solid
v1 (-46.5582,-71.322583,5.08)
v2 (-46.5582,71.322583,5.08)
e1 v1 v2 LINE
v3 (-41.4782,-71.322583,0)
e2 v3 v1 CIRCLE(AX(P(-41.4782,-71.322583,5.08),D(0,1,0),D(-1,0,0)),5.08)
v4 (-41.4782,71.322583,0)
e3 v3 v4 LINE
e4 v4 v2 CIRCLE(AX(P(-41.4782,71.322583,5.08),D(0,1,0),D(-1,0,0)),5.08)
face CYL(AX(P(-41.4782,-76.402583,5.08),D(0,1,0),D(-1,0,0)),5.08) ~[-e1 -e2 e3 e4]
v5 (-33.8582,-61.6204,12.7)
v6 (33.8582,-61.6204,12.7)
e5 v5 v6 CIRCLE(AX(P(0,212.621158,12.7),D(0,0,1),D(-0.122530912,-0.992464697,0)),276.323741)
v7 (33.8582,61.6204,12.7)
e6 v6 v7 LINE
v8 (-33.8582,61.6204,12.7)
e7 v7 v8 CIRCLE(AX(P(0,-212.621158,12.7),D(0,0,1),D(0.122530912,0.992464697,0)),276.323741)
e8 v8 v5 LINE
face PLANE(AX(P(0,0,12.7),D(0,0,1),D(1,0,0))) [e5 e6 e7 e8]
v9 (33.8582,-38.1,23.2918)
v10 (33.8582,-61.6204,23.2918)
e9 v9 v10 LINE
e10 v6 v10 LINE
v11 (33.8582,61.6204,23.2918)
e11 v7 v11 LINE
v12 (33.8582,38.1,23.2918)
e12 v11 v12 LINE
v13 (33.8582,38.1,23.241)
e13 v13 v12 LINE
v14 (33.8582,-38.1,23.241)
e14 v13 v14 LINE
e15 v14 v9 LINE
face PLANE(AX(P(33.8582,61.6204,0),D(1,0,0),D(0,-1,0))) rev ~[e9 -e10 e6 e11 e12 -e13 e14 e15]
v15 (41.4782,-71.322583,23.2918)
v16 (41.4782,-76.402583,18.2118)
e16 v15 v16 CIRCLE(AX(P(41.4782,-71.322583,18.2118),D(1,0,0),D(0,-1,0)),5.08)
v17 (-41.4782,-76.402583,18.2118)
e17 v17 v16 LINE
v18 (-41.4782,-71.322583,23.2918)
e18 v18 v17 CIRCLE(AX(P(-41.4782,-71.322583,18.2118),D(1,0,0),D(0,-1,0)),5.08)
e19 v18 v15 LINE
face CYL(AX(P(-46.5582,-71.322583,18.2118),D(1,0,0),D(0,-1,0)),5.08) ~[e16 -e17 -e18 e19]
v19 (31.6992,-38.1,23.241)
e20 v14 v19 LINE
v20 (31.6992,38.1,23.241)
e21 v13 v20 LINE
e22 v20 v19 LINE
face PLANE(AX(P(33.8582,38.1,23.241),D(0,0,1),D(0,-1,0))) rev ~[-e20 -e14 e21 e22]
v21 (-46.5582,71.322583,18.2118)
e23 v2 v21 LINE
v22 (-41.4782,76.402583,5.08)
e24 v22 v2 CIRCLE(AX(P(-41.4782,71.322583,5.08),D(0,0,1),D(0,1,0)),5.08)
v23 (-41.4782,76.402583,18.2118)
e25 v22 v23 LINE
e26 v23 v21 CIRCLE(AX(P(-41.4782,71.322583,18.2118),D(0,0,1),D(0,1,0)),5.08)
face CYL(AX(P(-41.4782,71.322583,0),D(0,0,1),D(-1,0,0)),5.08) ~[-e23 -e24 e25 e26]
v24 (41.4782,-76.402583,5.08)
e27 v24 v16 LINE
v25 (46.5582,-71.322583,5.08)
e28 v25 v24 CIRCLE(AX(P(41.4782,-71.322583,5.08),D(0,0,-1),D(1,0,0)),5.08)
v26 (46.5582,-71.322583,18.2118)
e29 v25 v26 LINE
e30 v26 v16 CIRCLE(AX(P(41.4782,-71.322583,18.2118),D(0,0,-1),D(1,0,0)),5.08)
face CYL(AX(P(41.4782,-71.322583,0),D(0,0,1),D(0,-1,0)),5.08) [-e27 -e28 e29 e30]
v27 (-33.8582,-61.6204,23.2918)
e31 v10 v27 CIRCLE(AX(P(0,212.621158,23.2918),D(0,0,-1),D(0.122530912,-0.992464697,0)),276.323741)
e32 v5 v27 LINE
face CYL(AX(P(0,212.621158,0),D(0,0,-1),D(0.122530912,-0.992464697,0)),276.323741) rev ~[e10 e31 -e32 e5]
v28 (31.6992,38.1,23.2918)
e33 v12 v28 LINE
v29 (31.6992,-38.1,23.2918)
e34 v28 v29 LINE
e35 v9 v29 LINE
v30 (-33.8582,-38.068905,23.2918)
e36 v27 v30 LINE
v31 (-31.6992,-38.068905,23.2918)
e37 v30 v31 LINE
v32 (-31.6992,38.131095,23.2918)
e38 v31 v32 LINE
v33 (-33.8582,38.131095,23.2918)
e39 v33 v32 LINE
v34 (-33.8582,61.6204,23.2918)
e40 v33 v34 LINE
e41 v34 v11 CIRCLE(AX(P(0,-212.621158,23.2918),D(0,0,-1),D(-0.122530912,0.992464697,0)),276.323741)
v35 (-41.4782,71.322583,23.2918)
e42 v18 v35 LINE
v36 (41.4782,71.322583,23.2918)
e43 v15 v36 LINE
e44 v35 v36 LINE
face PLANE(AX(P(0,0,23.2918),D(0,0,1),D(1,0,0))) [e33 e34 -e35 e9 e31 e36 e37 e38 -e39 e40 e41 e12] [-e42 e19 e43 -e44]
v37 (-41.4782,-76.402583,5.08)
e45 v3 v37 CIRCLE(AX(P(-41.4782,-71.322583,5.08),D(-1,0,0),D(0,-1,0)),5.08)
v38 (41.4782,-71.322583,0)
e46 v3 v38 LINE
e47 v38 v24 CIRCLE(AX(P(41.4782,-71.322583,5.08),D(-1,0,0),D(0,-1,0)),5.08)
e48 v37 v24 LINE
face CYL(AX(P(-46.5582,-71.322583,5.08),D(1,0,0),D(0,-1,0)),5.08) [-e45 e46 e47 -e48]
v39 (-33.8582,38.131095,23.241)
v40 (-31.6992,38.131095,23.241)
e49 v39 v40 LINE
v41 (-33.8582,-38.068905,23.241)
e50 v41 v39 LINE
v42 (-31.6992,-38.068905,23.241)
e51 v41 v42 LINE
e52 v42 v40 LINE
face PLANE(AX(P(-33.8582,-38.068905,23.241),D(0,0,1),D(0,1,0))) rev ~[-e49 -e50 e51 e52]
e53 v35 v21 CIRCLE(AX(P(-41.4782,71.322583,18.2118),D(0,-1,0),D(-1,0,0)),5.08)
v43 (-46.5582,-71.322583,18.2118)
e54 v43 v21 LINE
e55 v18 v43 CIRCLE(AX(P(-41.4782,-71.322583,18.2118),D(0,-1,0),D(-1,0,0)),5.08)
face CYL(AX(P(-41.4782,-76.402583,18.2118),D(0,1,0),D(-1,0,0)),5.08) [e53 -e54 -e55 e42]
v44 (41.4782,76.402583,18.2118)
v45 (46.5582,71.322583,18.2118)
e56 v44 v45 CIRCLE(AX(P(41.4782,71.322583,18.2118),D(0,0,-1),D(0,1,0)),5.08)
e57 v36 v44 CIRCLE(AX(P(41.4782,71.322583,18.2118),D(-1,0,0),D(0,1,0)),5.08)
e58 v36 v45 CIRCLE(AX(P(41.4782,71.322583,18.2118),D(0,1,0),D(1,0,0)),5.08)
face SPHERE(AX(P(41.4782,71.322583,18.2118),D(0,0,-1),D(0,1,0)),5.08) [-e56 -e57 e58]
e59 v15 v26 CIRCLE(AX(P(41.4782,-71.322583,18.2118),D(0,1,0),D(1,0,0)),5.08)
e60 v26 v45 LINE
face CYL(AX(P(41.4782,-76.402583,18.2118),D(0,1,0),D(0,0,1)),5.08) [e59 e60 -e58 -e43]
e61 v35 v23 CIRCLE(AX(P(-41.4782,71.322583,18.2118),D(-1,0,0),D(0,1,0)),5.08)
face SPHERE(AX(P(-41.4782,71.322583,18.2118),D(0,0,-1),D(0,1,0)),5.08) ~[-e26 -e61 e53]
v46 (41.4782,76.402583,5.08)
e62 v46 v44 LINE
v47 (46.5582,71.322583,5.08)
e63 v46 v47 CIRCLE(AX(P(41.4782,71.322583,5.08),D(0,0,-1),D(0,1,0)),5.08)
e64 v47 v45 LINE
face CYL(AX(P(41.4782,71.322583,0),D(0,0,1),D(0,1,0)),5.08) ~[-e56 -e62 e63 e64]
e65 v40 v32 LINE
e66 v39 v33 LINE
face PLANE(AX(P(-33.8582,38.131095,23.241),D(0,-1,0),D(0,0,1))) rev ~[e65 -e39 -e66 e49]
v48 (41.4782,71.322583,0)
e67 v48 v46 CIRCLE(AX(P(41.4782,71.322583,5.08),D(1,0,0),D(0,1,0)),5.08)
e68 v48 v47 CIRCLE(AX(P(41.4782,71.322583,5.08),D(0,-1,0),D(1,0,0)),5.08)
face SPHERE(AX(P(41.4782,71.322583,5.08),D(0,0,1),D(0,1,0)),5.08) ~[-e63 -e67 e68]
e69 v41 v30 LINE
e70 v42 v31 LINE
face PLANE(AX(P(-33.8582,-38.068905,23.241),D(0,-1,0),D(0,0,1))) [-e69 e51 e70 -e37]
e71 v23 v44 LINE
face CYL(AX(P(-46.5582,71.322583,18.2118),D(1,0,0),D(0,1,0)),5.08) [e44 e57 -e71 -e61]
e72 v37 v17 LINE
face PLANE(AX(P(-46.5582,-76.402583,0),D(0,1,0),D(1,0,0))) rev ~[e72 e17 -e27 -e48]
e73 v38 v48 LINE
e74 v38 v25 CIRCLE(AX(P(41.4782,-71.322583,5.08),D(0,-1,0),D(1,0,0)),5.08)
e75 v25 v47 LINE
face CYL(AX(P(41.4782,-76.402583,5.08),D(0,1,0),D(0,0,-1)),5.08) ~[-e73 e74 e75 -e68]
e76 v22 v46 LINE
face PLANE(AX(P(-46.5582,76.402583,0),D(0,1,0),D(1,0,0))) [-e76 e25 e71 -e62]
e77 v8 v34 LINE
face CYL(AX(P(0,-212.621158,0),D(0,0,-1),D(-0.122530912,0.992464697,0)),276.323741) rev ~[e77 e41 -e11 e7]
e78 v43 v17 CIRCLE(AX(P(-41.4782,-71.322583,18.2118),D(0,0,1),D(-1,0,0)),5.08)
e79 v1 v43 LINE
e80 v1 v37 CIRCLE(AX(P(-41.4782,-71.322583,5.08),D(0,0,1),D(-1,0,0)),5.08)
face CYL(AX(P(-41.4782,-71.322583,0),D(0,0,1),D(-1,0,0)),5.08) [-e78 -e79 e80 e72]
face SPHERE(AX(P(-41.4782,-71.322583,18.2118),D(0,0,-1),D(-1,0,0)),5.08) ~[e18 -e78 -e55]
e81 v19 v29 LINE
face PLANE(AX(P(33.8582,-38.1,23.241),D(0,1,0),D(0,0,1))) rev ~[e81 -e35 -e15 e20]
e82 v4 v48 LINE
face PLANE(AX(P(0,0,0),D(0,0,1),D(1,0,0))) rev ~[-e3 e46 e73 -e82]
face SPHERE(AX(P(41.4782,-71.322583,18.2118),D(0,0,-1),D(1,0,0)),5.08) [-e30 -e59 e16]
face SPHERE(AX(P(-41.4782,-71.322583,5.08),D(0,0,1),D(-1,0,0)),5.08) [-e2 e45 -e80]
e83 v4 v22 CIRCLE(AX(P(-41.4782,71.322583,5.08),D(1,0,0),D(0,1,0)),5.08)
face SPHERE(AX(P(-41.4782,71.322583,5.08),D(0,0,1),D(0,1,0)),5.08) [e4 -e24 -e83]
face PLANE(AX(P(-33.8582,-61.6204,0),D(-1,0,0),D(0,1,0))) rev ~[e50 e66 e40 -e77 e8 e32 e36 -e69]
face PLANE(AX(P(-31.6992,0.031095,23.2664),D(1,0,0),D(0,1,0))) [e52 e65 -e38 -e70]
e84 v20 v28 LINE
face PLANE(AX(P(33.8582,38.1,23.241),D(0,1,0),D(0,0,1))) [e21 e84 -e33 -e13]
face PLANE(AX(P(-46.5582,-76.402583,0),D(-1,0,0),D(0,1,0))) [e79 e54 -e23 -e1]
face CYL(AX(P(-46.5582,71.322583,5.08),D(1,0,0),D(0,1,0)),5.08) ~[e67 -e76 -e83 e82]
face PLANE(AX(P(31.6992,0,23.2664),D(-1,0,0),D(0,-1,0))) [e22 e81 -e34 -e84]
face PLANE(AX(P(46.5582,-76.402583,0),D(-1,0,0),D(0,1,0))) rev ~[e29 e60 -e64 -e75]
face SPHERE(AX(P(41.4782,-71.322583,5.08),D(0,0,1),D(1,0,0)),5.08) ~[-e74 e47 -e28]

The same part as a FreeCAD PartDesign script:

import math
import FreeCAD as App
import Part
import Sketcher
from FreeCAD import Vector
Q = App.Units.Quantity


def edges_at(feature, points):
    """Names of the edges that pass closest to the given points."""
    edges = feature.Shape.Edges
    near = lambda p: min(range(len(edges)), key=lambda i: edges[i].distToShape(Part.Vertex(*p))[0])
    return sorted({f"Edge{near(p) + 1}" for p in points})

doc = App.newDocument("Part")
body = doc.addObject("PartDesign::Body", "Body")

# Sketch on XY plane
sketch1 = body.newObject("Sketcher::SketchObject", "Sketch")
sketch1.AttachmentSupport = (doc.getObject("XY_Plane"), [""])
sketch1.MapMode = "FlatFace"
sketch1.addGeometry([
    Part.LineSegment(Vector(34, -62, 0), Vector(34, 62, 0)),
    Part.ArcOfCircle(Part.Circle(Vector(0, -213, 0), Vector(0, 0, 1), 276), math.radians(82.96), math.radians(97.04)),
    Part.LineSegment(Vector(-34, 62, 0), Vector(-34, -62, 0)),
    Part.ArcOfCircle(Part.Circle(Vector(0, 213, 0), Vector(0, 0, 1), 276), math.radians(-97.04), math.radians(-82.96)),
], False)
sketch1.addConstraint([
    Sketcher.Constraint("Coincident", 0, 2, 1, 1),
    Sketcher.Constraint("Coincident", 1, 2, 2, 1),
    Sketcher.Constraint("Coincident", 2, 2, 3, 1),
    Sketcher.Constraint("Coincident", 3, 2, 0, 1),
    Sketcher.Constraint("Vertical", 0),
    Sketcher.Constraint("Vertical", 2),
    Sketcher.Constraint("Equal", 1, 3),
    Sketcher.Constraint("Symmetric", 1, 3, 3, 3, -1, 1),
    Sketcher.Constraint("Symmetric", 0, 2, 1, 2, -2),
    Sketcher.Constraint("DistanceY", 0, 1, 0, 2, Q("4.852 in")),
    Sketcher.Constraint("DistanceX", -1, 1, 0, 2, Q("1.333 in")),
    Sketcher.Constraint("Radius", 1, Q("276.323741 mm")),
])
pad1 = body.newObject("PartDesign::Pad", "Pad")
pad1.Profile = sketch1
pad1.Length = Q("0.5 in")

# Sketch on XY plane
sketch2 = body.newObject("Sketcher::SketchObject", "Sketch001")
sketch2.AttachmentSupport = (doc.getObject("XY_Plane"), [""])
sketch2.MapMode = "FlatFace"
sketch2.addGeometry([
    Part.LineSegment(Vector(-47, 76, 0), Vector(-47, -76, 0)),  # 0
    Part.LineSegment(Vector(-47, -76, 0), Vector(47, -76, 0)),  # 1
    Part.LineSegment(Vector(47, -76, 0), Vector(47, 76, 0)),  # 2
    Part.LineSegment(Vector(47, 76, 0), Vector(-47, 76, 0)),  # 3
    Part.LineSegment(Vector(-34, -62, 0), Vector(-34, 62, 0)),  # 4
    Part.ArcOfCircle(Part.Circle(Vector(0, -213, 0), Vector(0, 0, 1), 276), math.radians(82.96), math.radians(97.04)),  # 5
    Part.LineSegment(Vector(34, 62, 0), Vector(34, -62, 0)),  # 6
    Part.ArcOfCircle(Part.Circle(Vector(0, 213, 0), Vector(0, 0, 1), 276), math.radians(-97.04), math.radians(-82.96)),  # 7
], False)
sketch2.addConstraint([
    Sketcher.Constraint("Coincident", 0, 2, 1, 1),
    Sketcher.Constraint("Coincident", 1, 2, 2, 1),
    Sketcher.Constraint("Coincident", 2, 2, 3, 1),
    Sketcher.Constraint("Coincident", 3, 2, 0, 1),
    Sketcher.Constraint("Coincident", 4, 2, 5, 2),
    Sketcher.Constraint("Coincident", 5, 1, 6, 1),
    Sketcher.Constraint("Coincident", 6, 2, 7, 2),
    Sketcher.Constraint("Coincident", 7, 1, 4, 1),
    Sketcher.Constraint("Vertical", 0),
    Sketcher.Constraint("Horizontal", 1),
    Sketcher.Constraint("Vertical", 2),
    Sketcher.Constraint("Horizontal", 3),
    Sketcher.Constraint("Vertical", 4),
    Sketcher.Constraint("Vertical", 6),
    Sketcher.Constraint("Equal", 5, 7),
    Sketcher.Constraint("Symmetric", 5, 3, 7, 3, -1, 1),
    Sketcher.Constraint("Symmetric", 0, 2, 2, 2, -1, 1),
    Sketcher.Constraint("Symmetric", 4, 2, 5, 1, -2),
    Sketcher.Constraint("DistanceX", 3, 2, 4, 2, Q("0.5 in")),
    Sketcher.Constraint("DistanceX", 1, 1, 1, 2, Q("3.666 in")),
    Sketcher.Constraint("DistanceY", 4, 1, 4, 2, Q("4.852 in")),
    Sketcher.Constraint("Radius", 5, Q("276.323741 mm")),
    Sketcher.Constraint("DistanceY", 0, 2, 0, 1, Q("152.805166 mm")),
])
pad2 = body.newObject("PartDesign::Pad", "Pad001")
pad2.Profile = sketch2
pad2.Length = Q("0.917 in")
doc.recompute()

fillet = body.newObject("PartDesign::Fillet", "Fillet")
fillet.Base = (pad2, edges_at(pad2, [
    (46.558, 76.403, 11.646),
    (-46.558, 76.403, 11.646),
    (0, 76.403, 0),
    (0, 76.403, 23.292),
    (46.558, -76.403, 11.646),
    (46.558, 0, 0),
    (46.558, 0, 23.292),
    (-46.558, -76.403, 11.646),
    (-46.558, 0, 0),
    (-46.558, 0, 23.292),
    (0, -76.403, 0),
    (0, -76.403, 23.292),
]))
fillet.Radius = Q("0.2 in")

# Sketch on YZ plane
sketch3 = body.newObject("Sketcher::SketchObject", "Sketch002")
sketch3.AttachmentSupport = (doc.getObject("YZ_Plane"), [""])
sketch3.MapMode = "FlatFace"
sketch3.AttachmentOffset = App.Placement(Vector(0, 0, -1.333 * 25.4), App.Rotation())
sketch3.addGeometry([
    Part.LineSegment(Vector(-38.07, 23.29, 0), Vector(-38.07, 23.24, 0)),
    Part.LineSegment(Vector(-38.07, 23.24, 0), Vector(38.13, 23.24, 0)),
    Part.LineSegment(Vector(38.13, 23.24, 0), Vector(38.13, 23.29, 0)),
    Part.LineSegment(Vector(38.13, 23.29, 0), Vector(-38.07, 23.29, 0)),
], False)
sketch3.addConstraint([
    Sketcher.Constraint("Coincident", 0, 2, 1, 1),
    Sketcher.Constraint("Coincident", 1, 2, 2, 1),
    Sketcher.Constraint("Coincident", 2, 2, 3, 1),
    Sketcher.Constraint("Coincident", 3, 2, 0, 1),
    Sketcher.Constraint("Vertical", 0),
    Sketcher.Constraint("Horizontal", 1),
    Sketcher.Constraint("Vertical", 2),
    Sketcher.Constraint("Horizontal", 3),
    Sketcher.Constraint("DistanceX", 1, 1, 1, 2, Q("3 in")),
    Sketcher.Constraint("DistanceY", 0, 2, 0, 1, Q("0.002 in")),
    Sketcher.Constraint("DistanceY", -1, 1, 0, 2, Q("0.915 in")),
    Sketcher.Constraint("DistanceX", 0, 2, -1, 1, Q("38.068905 mm")),
])
pad3 = body.newObject("PartDesign::Pad", "Pad002")
pad3.Profile = sketch3
pad3.Length = Q("0.085 in")

# Sketch on YZ plane
sketch4 = body.newObject("Sketcher::SketchObject", "Sketch003")
sketch4.AttachmentSupport = (doc.getObject("YZ_Plane"), [""])
sketch4.MapMode = "FlatFace"
sketch4.AttachmentOffset = App.Placement(Vector(0, 0, 1.333 * 25.4), App.Rotation())
sketch4.addGeometry([
    Part.LineSegment(Vector(38.1, 23.29, 0), Vector(38.1, 23.24, 0)),
    Part.LineSegment(Vector(38.1, 23.24, 0), Vector(-38.1, 23.24, 0)),
    Part.LineSegment(Vector(-38.1, 23.24, 0), Vector(-38.1, 23.29, 0)),
    Part.LineSegment(Vector(-38.1, 23.29, 0), Vector(38.1, 23.29, 0)),
], False)
sketch4.addConstraint([
    Sketcher.Constraint("Coincident", 0, 2, 1, 1),
    Sketcher.Constraint("Coincident", 1, 2, 2, 1),
    Sketcher.Constraint("Coincident", 2, 2, 3, 1),
    Sketcher.Constraint("Coincident", 3, 2, 0, 1),
    Sketcher.Constraint("Vertical", 0),
    Sketcher.Constraint("Horizontal", 1),
    Sketcher.Constraint("Vertical", 2),
    Sketcher.Constraint("Horizontal", 3),
    Sketcher.Constraint("DistanceX", 1, 2, 1, 1, Q("3 in")),
    Sketcher.Constraint("DistanceX", -1, 1, 0, 2, Q("1.5 in")),
    Sketcher.Constraint("DistanceY", 0, 2, 0, 1, Q("0.002 in")),
    Sketcher.Constraint("DistanceY", -1, 1, 0, 2, Q("0.915 in")),
])
pad4 = body.newObject("PartDesign::Pad", "Pad003")
pad4.Profile = sketch4
pad4.Length = Q("0.085 in")
pad4.Reversed = True

doc.recompute()
